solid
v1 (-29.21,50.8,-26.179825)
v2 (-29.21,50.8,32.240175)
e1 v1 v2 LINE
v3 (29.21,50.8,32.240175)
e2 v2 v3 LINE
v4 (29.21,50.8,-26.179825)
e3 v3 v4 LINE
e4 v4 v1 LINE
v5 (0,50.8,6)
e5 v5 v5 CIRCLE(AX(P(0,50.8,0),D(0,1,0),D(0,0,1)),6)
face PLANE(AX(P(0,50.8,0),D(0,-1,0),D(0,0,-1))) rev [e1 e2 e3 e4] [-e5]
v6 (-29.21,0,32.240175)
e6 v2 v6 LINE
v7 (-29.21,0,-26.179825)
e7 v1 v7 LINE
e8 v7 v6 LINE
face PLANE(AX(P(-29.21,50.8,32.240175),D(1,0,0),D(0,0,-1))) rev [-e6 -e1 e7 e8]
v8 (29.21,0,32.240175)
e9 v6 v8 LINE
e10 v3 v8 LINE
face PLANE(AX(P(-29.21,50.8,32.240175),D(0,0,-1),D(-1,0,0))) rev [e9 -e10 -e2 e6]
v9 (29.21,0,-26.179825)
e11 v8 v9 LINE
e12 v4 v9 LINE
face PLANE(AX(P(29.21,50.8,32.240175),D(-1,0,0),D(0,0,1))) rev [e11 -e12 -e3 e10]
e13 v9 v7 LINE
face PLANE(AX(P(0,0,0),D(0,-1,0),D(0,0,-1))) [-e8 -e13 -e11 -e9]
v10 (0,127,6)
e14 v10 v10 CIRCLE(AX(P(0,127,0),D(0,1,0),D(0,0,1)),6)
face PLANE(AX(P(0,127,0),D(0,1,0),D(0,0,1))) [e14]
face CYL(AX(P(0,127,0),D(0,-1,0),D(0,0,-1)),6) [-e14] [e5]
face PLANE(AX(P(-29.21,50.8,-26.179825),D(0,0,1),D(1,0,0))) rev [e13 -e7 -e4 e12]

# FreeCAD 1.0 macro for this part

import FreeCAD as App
import Part
import Sketcher
from FreeCAD import Vector
Q = App.Units.Quantity


def add_polygon(sketch, points):
    """Adds a closed chain of lines whose ends are joined by coincident constraints."""
    first, n = sketch.GeometryCount, len(points)
    for a, b in zip(points, points[1:] + points[:1]):
        sketch.addGeometry(Part.LineSegment(App.Vector(*a, 0), App.Vector(*b, 0)), False)
    for i in range(n):
        sketch.addConstraint(Sketcher.Constraint("Coincident", first + i, 2, first + (i + 1) % n, 1))

doc = App.newDocument("Part")
body = doc.addObject("PartDesign::Body", "Body")

sketch1 = doc.addObject("Sketcher::SketchObject", "Sketch")
body.addObject(sketch1)
sketch1.AttachmentSupport = (doc.XZ_Plane, [""])
sketch1.MapMode = "FlatFace"
add_polygon(sketch1, [(-29, -26), (-29, 32), (29, 32), (29, -26)])
sketch1.addConstraint(Sketcher.Constraint("Vertical", 0))
sketch1.addConstraint(Sketcher.Constraint("Horizontal", 1))
sketch1.addConstraint(Sketcher.Constraint("Vertical", 2))
sketch1.addConstraint(Sketcher.Constraint("Horizontal", 3))
sketch1.addConstraint(Sketcher.Constraint("Equal", 3, 0))
sketch1.addConstraint(Sketcher.Constraint("DistanceX", 1, 1, 1, 2, Q("2.3 in")))
sketch1.addConstraint(Sketcher.Constraint("DistanceX", 0, 2, -1, 1, Q("1.15 in")))
sketch1.addConstraint(Sketcher.Constraint("DistanceY", -1, 1, 0, 2, Q("32.240175 mm")))
pad1 = doc.addObject("PartDesign::Pad", "Pad")
body.addObject(pad1)
pad1.Profile = sketch1
pad1.Length = Q("2 in")
pad1.Reversed = True

sketch2 = doc.addObject("Sketcher::SketchObject", "Sketch001")
body.addObject(sketch2)
sketch2.AttachmentSupport = (doc.XZ_Plane, [""])
sketch2.MapMode = "FlatFace"
sketch2.AttachmentOffset = App.Placement(Vector(0, 0, -2 * 25.4), App.Rotation())
sketch2.addGeometry(Part.Circle(Vector(0, 0, 0), Vector(0, 0, 1), 6), False)
sketch2.addConstraint(Sketcher.Constraint("Coincident", 0, 3, -1, 1))
sketch2.addConstraint(Sketcher.Constraint("Diameter", 0, Q("12 mm")))
pad2 = doc.addObject("PartDesign::Pad", "Pad001")
body.addObject(pad2)
pad2.Profile = sketch2
pad2.Length = Q("3 in")
pad2.Reversed = True

doc.recompute()
